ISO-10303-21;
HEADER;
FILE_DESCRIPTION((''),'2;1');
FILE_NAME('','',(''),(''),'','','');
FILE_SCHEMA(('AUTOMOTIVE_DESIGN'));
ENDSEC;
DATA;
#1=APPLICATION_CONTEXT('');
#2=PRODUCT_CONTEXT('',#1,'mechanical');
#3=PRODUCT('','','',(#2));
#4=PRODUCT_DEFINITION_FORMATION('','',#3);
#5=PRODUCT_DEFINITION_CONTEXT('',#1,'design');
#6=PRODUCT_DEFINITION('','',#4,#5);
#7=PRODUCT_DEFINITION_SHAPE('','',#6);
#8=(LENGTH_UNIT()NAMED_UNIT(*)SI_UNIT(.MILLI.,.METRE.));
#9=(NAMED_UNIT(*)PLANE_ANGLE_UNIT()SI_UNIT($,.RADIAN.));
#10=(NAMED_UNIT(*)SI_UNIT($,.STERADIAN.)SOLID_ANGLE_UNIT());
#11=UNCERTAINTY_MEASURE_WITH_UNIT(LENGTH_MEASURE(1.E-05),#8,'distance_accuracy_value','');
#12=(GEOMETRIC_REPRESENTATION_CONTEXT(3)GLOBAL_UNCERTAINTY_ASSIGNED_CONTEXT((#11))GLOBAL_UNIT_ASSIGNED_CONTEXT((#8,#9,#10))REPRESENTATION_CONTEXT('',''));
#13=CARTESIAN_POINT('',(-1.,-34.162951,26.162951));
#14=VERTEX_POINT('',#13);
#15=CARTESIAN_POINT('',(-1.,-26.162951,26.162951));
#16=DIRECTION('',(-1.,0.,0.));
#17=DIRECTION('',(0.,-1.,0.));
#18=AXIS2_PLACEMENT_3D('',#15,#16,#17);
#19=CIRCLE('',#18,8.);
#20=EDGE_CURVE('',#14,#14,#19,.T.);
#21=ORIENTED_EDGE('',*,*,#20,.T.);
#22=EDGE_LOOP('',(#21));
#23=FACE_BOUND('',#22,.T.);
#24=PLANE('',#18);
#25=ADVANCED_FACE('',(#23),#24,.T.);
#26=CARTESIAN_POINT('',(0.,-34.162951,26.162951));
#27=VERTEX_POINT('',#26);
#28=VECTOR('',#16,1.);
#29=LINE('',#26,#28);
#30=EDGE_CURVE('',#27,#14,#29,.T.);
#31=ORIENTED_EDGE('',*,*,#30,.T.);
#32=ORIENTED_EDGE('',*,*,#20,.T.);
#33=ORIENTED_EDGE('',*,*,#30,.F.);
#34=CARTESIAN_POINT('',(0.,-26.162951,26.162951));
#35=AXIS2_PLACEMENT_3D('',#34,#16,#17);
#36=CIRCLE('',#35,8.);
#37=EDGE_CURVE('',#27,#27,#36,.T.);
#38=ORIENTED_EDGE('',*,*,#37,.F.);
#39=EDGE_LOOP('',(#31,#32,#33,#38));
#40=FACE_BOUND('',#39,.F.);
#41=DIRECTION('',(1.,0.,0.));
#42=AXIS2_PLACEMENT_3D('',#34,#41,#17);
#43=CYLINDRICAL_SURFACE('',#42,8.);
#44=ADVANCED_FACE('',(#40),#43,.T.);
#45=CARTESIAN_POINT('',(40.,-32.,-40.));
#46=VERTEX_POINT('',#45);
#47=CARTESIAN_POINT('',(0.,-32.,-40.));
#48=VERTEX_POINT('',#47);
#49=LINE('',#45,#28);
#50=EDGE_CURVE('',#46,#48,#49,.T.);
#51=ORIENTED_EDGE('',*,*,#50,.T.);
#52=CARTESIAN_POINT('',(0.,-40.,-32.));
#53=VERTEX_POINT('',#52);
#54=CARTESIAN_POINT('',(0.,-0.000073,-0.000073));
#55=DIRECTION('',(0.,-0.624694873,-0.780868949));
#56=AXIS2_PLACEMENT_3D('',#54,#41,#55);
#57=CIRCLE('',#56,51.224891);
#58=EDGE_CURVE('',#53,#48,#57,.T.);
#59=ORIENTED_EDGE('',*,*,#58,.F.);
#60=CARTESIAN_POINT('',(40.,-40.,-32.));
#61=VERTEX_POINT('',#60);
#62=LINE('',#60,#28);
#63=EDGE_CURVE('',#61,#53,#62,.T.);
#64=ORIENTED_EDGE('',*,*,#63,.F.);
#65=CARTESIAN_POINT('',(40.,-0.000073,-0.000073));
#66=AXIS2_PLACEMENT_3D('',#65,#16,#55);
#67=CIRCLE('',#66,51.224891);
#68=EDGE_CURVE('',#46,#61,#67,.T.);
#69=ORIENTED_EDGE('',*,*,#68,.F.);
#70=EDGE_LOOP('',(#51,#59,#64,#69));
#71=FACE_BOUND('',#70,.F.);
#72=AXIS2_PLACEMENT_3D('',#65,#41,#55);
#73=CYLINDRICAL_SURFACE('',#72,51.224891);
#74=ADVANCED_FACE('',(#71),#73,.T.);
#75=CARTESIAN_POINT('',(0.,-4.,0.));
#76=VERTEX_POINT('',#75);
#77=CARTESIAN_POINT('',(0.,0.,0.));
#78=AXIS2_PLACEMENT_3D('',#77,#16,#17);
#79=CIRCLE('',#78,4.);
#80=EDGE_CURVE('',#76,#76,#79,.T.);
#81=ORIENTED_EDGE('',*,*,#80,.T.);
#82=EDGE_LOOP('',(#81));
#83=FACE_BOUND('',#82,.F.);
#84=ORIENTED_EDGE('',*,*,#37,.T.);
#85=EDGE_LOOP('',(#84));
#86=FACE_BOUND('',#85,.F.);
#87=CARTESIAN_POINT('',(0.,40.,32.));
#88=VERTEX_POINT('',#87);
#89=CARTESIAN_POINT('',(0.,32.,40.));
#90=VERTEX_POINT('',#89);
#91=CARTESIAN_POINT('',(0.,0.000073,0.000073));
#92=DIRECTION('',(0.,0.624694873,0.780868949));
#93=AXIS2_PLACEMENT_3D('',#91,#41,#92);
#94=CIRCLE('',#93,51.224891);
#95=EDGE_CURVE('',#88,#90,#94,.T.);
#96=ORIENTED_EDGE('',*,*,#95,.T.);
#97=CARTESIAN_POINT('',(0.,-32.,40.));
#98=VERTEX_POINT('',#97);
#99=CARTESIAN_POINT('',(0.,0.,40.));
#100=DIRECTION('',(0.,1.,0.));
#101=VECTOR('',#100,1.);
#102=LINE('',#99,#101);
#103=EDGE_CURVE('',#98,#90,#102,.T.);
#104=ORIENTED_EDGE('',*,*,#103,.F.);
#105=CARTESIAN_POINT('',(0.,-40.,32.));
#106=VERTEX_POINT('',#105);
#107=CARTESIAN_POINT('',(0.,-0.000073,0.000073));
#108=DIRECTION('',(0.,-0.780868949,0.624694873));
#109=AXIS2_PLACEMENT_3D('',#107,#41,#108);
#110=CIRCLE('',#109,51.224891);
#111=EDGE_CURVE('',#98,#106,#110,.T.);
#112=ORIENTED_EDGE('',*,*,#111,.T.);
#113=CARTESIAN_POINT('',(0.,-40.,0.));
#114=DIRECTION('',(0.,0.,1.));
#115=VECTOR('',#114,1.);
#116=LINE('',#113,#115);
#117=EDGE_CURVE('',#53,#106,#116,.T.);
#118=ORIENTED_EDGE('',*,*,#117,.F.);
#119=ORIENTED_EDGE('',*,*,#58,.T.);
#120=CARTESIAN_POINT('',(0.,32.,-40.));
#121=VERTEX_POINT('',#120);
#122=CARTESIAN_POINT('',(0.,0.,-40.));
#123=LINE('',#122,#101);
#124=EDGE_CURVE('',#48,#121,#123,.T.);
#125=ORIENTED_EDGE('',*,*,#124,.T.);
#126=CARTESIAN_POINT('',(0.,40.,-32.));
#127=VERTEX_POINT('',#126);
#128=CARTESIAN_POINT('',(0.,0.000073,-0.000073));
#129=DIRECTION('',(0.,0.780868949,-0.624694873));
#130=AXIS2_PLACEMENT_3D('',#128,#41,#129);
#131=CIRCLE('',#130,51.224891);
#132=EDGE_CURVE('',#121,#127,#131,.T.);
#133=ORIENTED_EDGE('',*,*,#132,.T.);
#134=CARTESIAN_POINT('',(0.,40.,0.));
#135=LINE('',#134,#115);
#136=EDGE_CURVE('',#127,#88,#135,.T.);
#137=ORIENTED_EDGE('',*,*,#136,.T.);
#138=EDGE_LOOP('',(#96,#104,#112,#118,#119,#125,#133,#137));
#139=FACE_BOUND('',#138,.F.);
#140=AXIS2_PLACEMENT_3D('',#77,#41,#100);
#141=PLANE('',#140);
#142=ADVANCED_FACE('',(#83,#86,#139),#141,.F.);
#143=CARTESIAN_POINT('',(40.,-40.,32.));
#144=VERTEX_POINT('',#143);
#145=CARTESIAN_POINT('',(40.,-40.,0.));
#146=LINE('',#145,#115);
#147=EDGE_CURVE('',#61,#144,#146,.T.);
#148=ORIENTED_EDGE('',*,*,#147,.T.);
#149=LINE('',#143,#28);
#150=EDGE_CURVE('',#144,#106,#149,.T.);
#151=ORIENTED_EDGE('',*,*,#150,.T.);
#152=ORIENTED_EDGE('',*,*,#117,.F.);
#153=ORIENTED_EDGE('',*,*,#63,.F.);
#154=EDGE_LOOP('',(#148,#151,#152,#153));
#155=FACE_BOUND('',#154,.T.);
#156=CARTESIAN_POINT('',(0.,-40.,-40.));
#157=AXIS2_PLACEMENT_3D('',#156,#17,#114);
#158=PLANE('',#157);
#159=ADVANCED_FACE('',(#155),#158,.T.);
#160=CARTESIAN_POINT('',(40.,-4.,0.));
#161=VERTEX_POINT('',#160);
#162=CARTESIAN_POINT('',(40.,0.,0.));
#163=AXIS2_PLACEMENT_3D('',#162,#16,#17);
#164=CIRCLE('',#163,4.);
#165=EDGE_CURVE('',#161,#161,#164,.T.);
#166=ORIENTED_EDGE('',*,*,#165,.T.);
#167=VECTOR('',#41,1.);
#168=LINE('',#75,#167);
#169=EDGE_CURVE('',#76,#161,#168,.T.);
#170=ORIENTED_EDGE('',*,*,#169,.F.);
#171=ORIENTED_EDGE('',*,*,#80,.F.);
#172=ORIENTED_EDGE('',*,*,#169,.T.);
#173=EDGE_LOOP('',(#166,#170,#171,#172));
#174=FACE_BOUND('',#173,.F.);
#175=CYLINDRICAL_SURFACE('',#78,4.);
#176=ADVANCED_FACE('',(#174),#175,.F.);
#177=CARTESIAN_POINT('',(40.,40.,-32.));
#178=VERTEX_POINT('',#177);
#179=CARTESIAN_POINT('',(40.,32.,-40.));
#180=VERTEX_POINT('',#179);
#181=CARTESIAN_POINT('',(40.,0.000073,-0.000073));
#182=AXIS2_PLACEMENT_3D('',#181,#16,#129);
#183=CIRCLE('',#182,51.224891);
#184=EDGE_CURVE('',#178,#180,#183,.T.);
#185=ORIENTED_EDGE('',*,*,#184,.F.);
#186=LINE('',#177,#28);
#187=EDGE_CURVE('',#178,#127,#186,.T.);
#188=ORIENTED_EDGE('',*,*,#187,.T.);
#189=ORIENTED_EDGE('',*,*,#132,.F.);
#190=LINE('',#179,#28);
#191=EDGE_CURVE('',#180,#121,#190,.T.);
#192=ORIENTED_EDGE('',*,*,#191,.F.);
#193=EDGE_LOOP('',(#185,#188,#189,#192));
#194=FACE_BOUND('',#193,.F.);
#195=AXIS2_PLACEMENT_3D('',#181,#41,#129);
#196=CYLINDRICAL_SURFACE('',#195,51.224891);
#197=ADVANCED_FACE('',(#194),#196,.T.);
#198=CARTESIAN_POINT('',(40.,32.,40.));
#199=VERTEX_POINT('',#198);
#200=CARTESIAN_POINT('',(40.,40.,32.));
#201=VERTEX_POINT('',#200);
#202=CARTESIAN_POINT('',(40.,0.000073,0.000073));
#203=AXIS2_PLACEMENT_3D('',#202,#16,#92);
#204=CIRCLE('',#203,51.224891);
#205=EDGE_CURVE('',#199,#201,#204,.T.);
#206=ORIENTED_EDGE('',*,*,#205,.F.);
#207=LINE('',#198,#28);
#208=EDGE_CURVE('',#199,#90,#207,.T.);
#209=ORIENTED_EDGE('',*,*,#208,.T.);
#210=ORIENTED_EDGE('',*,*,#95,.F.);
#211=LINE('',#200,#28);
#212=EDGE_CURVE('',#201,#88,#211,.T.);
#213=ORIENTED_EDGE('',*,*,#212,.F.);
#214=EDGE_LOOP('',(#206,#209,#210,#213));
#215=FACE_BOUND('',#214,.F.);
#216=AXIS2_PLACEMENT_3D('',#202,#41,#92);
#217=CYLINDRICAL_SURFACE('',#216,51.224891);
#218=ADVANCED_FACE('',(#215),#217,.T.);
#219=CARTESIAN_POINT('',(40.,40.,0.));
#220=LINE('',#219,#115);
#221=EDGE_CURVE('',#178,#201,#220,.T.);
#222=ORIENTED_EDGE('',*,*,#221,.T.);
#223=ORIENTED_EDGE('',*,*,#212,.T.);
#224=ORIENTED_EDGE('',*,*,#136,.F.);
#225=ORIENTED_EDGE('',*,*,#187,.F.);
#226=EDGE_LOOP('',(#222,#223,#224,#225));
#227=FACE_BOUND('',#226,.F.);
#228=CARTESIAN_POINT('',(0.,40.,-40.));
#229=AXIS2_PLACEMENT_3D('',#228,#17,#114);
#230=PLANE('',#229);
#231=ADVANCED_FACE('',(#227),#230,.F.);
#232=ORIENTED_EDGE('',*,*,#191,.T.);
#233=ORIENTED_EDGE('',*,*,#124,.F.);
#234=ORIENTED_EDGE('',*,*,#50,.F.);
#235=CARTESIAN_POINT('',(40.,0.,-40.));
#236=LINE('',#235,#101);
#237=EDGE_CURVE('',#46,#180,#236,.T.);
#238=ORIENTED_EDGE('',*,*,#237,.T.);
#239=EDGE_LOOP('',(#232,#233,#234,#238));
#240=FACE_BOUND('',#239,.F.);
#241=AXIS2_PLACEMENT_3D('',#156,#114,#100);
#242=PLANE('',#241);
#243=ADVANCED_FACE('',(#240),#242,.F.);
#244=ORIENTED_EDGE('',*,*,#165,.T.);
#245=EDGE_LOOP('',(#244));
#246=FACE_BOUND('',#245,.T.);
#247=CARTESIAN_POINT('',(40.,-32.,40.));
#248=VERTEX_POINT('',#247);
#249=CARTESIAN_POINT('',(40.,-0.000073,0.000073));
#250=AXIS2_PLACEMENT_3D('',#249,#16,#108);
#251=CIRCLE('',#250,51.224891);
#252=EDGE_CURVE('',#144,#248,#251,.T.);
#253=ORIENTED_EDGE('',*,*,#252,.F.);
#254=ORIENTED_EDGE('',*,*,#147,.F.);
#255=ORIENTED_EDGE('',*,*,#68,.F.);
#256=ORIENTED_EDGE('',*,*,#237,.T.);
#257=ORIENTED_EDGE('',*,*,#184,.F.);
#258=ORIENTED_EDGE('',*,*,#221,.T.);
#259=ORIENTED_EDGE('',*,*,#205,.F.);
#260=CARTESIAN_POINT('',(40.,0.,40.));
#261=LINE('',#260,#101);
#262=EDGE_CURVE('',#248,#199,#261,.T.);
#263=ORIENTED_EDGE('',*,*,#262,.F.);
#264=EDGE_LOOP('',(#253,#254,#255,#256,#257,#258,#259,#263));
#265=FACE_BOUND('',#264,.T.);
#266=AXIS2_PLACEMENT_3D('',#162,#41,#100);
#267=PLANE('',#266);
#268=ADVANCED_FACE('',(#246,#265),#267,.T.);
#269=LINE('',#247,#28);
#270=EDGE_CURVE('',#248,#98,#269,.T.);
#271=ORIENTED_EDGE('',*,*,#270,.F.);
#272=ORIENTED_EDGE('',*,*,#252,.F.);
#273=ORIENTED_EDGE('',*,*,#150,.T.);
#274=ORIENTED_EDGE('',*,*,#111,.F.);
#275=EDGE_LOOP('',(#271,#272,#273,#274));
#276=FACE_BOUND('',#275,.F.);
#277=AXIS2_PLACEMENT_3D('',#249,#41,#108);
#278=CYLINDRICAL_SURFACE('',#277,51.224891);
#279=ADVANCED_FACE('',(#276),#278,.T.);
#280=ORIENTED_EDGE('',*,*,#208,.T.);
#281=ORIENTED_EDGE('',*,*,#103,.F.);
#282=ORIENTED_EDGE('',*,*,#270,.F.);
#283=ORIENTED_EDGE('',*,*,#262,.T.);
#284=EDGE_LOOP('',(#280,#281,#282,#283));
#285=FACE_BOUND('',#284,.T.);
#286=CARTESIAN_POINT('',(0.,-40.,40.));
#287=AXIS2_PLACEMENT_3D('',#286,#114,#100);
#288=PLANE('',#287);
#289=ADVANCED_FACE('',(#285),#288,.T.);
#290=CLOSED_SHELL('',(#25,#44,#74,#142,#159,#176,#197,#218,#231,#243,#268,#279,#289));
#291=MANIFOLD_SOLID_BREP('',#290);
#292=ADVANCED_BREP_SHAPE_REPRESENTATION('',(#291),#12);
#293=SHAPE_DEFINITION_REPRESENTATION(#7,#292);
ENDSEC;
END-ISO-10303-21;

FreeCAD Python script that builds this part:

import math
import FreeCAD as App
import Part
import Sketcher

V = App.Vector
Q = App.Units.Quantity


def add_polygon(sketch, points):
    """Adds a closed chain of lines whose ends are joined by coincident constraints."""
    first, n = sketch.GeometryCount, len(points)
    for a, b in zip(points, points[1:] + points[:1]):
        sketch.addGeometry(Part.LineSegment(App.Vector(*a, 0), App.Vector(*b, 0)), False)
    for i in range(n):
        sketch.addConstraint(Sketcher.Constraint("Coincident", first + i, 2, first + (i + 1) % n, 1))

doc = App.newDocument("Part")
body = doc.addObject("PartDesign::Body", "Body")

# Sketch on YZ plane
sketch1 = body.newObject("Sketcher::SketchObject", "Sketch")
sketch1.AttachmentSupport = (doc.getObject("YZ_Plane"), [""])
sketch1.MapMode = "FlatFace"
add_polygon(sketch1, [(-40, 40), (-40, -40), (40, -40), (40, 40)])  # lines 0-3
sketch1.addConstraint([
    Sketcher.Constraint("Vertical", 0),
    Sketcher.Constraint("Horizontal", 1),
    Sketcher.Constraint("Vertical", 2),
    Sketcher.Constraint("Horizontal", 3),
    Sketcher.Constraint("Symmetric", 0, 2, 2, 2, -1, 1),
    Sketcher.Constraint("Equal", 3, 0),
    Sketcher.Constraint("DistanceX", 1, 1, 1, 2, Q("80 mm")),
])
pad1 = body.newObject("PartDesign::Pad", "Pad")
pad1.Profile = sketch1
pad1.Length = 40

# Sketch on YZ plane
sketch2 = body.newObject("Sketcher::SketchObject", "Sketch001")
sketch2.AttachmentSupport = (doc.getObject("YZ_Plane"), [""])
sketch2.MapMode = "FlatFace"
sketch2.AttachmentOffset = App.Placement(V(0, 0, 40), App.Rotation())
sketch2.addGeometry([
    Part.ArcOfCircle(Part.Circle(V(-0.000073, 0.000073, 0), V(0, 0, 1), 51.224891), math.radians(128.659795), math.radians(141.340205)),  # 0
    Part.LineSegment(V(-32, 40, 0), V(-40, 40, 0)),  # 1
    Part.LineSegment(V(-40, 40, 0), V(-40, 32, 0)),  # 2
    Part.ArcOfCircle(Part.Circle(V(-0.000073, -0.000073, 0), V(0, 0, 1), 51.224891), math.radians(-141.340205), math.radians(-128.659795)),  # 3
    Part.LineSegment(V(-40, -32, 0), V(-40, -40, 0)),  # 4
    Part.LineSegment(V(-40, -40, 0), V(-32, -40, 0)),  # 5
    Part.ArcOfCircle(Part.Circle(V(0.000073, -0.000073, 0), V(0, 0, 1), 51.224891), math.radians(-51.340205), math.radians(-38.659795)),  # 6
    Part.LineSegment(V(32, -40, 0), V(40, -40, 0)),  # 7
    Part.LineSegment(V(40, -40, 0), V(40, -32, 0)),  # 8
    Part.ArcOfCircle(Part.Circle(V(0.000073, 0.000073, 0), V(0, 0, 1), 51.224891), math.radians(38.659795), math.radians(51.340205)),  # 9
    Part.LineSegment(V(40, 32, 0), V(40, 40, 0)),  # 10
    Part.LineSegment(V(40, 40, 0), V(32, 40, 0)),  # 11
], False)
sketch2.addConstraint([
    Sketcher.Constraint("Coincident", 0, 1, 1, 1),
    Sketcher.Constraint("Coincident", 1, 2, 2, 1),
    Sketcher.Constraint("Coincident", 2, 2, 0, 2),
    Sketcher.Constraint("Coincident", 3, 1, 4, 1),
    Sketcher.Constraint("Coincident", 4, 2, 5, 1),
    Sketcher.Constraint("Coincident", 5, 2, 3, 2),
    Sketcher.Constraint("Coincident", 6, 1, 7, 1),
    Sketcher.Constraint("Coincident", 7, 2, 8, 1),
    Sketcher.Constraint("Coincident", 8, 2, 6, 2),
    Sketcher.Constraint("Coincident", 9, 1, 10, 1),
    Sketcher.Constraint("Coincident", 10, 2, 11, 1),
    Sketcher.Constraint("Coincident", 11, 2, 9, 2),
    Sketcher.Constraint("Horizontal", 1),
    Sketcher.Constraint("Vertical", 2),
    Sketcher.Constraint("Vertical", 4),
    Sketcher.Constraint("Horizontal", 5),
    Sketcher.Constraint("Horizontal", 7),
    Sketcher.Constraint("Vertical", 8),
    Sketcher.Constraint("Vertical", 10),
    Sketcher.Constraint("Horizontal", 11),
    Sketcher.Constraint("Equal", 0, 3),
    Sketcher.Constraint("Equal", 3, 6),
    Sketcher.Constraint("Equal", 6, 9),
    Sketcher.Constraint("Symmetric", 0, 3, 6, 3, -1, 1),
    Sketcher.Constraint("Symmetric", 3, 3, 9, 3, -1, 1),
    Sketcher.Constraint("Symmetric", 1, 2, 7, 2, -1, 1),
    Sketcher.Constraint("Symmetric", 4, 2, 10, 2, -1, 1),
    Sketcher.Constraint("Symmetric", 3, 3, 6, 3, -2),
    Sketcher.Constraint("Symmetric", 4, 2, 7, 2, -2),
    Sketcher.Constraint("Equal", 11, 2),
    Sketcher.Constraint("DistanceX", 1, 2, 1, 1, Q("8 mm")),
    Sketcher.Constraint("DistanceX", 0, 1, -1, 1, Q("32 mm")),
    Sketcher.Constraint("DistanceY", -1, 1, 0, 1, Q("40 mm")),
    Sketcher.Constraint("Radius", 0, Q("51.224891 mm")),
])
pocket1 = body.newObject("PartDesign::Pocket", "Pocket")
pocket1.Profile = sketch2
pocket1.Type = "ThroughAll"

# Sketch on YZ plane
sketch3 = body.newObject("Sketcher::SketchObject", "Sketch002")
sketch3.AttachmentSupport = (doc.getObject("YZ_Plane"), [""])
sketch3.MapMode = "FlatFace"
sketch3.addGeometry(Part.Circle(V(0, 0, 0), V(0, 0, 1), 4), False)
sketch3.addConstraint([
    Sketcher.Constraint("Coincident", 0, 3, -1, 1),
    Sketcher.Constraint("Diameter", 0, Q("8 mm")),
])
pocket2 = body.newObject("PartDesign::Pocket", "Pocket001")
pocket2.Profile = sketch3
pocket2.Type = "ThroughAll"
pocket2.Reversed = True

# Sketch on YZ plane
sketch4 = body.newObject("Sketcher::SketchObject", "Sketch003")
sketch4.AttachmentSupport = (doc.getObject("YZ_Plane"), [""])
sketch4.MapMode = "FlatFace"
sketch4.addGeometry(Part.Circle(V(-26.162951, 26.162951, 0), V(0, 0, 1), 8), False)
sketch4.addConstraint([
    Sketcher.Constraint("Diameter", 0, Q("16 mm")),
    Sketcher.Constraint("DistanceX", 0, 3, -1, 1, Q("26.162951 mm")),
    Sketcher.Constraint("DistanceY", -1, 1, 0, 3, Q("26.162951 mm")),
])
pad2 = body.newObject("PartDesign::Pad", "Pad001")
pad2.Profile = sketch4
pad2.Length = 1
pad2.Reversed = True

doc.recompute()
